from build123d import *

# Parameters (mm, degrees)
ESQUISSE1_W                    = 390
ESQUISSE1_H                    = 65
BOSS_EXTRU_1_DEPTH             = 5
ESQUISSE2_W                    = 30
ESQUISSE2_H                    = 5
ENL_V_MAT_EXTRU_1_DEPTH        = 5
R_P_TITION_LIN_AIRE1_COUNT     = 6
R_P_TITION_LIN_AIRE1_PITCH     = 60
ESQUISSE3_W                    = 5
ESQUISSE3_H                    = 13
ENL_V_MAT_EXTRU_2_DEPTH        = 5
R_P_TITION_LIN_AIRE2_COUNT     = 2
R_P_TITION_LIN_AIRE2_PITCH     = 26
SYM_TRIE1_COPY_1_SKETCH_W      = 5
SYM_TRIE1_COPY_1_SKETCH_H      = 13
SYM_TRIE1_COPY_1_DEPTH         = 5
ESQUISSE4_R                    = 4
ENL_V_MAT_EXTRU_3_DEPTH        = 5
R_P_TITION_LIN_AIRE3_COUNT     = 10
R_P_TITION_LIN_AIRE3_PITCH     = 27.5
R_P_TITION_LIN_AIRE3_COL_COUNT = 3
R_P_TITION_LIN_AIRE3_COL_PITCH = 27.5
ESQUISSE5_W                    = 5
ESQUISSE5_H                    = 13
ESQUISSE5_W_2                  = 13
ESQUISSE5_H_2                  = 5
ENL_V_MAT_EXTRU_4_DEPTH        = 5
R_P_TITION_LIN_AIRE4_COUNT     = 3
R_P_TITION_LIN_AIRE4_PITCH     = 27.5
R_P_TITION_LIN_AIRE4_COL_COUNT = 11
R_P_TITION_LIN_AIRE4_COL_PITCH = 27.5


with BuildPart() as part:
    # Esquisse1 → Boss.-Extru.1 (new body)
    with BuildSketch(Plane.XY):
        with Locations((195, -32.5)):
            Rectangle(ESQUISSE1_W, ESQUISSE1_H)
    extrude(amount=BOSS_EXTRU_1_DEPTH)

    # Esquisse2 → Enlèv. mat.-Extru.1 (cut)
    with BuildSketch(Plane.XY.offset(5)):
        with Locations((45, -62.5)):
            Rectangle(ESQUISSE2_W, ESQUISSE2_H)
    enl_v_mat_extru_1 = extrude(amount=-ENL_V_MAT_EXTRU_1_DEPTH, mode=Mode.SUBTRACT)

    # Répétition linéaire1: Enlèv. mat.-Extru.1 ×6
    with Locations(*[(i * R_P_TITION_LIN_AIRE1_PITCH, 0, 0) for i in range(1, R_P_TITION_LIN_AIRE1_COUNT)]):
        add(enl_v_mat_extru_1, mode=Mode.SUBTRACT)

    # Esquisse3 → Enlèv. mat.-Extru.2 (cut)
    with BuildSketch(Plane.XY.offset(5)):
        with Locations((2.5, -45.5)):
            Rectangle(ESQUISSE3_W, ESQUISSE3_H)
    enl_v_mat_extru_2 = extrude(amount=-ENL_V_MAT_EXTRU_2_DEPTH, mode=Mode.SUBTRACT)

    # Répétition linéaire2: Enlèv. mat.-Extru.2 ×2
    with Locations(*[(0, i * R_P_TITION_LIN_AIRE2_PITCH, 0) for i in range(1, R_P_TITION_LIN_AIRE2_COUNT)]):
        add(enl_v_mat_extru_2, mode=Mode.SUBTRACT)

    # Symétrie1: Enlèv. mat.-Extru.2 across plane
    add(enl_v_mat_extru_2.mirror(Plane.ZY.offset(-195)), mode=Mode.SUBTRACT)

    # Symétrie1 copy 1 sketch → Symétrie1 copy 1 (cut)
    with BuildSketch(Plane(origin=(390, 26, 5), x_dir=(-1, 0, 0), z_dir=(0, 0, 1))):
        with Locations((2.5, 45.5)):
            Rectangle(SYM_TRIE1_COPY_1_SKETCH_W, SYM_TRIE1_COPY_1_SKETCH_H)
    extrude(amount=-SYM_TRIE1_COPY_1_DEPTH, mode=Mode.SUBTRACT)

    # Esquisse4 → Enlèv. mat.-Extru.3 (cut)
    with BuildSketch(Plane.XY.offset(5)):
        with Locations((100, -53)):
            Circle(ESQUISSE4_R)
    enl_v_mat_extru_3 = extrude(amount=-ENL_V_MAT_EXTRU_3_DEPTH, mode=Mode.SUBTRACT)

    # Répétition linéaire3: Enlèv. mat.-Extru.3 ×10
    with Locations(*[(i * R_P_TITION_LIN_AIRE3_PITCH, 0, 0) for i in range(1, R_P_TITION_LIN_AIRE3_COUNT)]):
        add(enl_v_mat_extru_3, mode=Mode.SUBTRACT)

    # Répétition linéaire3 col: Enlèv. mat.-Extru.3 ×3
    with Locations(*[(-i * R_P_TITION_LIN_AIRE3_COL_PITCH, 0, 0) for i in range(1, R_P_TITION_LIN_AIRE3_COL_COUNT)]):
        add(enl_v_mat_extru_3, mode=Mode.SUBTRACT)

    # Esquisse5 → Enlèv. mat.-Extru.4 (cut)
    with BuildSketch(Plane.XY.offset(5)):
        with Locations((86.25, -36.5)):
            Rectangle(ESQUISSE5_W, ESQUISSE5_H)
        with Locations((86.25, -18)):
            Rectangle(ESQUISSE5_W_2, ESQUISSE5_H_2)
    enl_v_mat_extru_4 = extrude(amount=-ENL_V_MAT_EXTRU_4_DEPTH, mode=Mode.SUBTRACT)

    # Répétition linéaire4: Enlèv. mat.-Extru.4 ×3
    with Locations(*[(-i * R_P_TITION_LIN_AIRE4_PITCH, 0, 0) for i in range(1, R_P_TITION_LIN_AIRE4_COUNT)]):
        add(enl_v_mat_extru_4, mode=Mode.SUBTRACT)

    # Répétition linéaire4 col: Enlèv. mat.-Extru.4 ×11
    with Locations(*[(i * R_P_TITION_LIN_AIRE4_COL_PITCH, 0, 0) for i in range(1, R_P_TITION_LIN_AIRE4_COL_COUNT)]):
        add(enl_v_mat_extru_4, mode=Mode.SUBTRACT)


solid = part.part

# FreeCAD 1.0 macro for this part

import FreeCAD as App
import Part
import Sketcher


def add_polygon(sketch, points):
    """Adds a closed chain of lines whose ends are joined by coincident constraints."""
    first, n = sketch.GeometryCount, len(points)
    for a, b in zip(points, points[1:] + points[:1]):
        sketch.addGeometry(Part.LineSegment(App.Vector(*a, 0), App.Vector(*b, 0)), False)
    for i in range(n):
        sketch.addConstraint(Sketcher.Constraint("Coincident", first + i, 2, first + (i + 1) % n, 1))

doc = App.newDocument("Part")
body = doc.addObject("PartDesign::Body", "Body")

sketch1 = body.newObject("Sketcher::SketchObject", "Sketch")
sketch1.AttachmentSupport = (doc.getObject("XY_Plane"), [""])
sketch1.MapMode = "FlatFace"
add_polygon(sketch1, [(0, 0), (0, -65), (390, -65), (390, 0)])
sketch1.addConstraint([
    Sketcher.Constraint("Vertical", 0),
    Sketcher.Constraint("Horizontal", 1),
    Sketcher.Constraint("Vertical", 2),
    Sketcher.Constraint("Horizontal", 3),
    Sketcher.Constraint("Coincident", 3, 2, -1, 1),
    Sketcher.Constraint("DistanceX", 1, 1, 1, 2, 390.0),
    Sketcher.Constraint("DistanceY", 0, 2, 0, 1, 65.0),
])
pad1 = body.newObject("PartDesign::Pad", "Pad")
pad1.Profile = sketch1
pad1.Length = 5

sketch2 = body.newObject("Sketcher::SketchObject", "Sketch001")
sketch2.AttachmentSupport = (doc.getObject("XY_Plane"), [""])
sketch2.MapMode = "FlatFace"
sketch2.AttachmentOffset = App.Placement(App.Vector(0, 0, 5), App.Rotation())
add_polygon(sketch2, [(30, -60), (30, -65), (60, -65), (60, -60)])
sketch2.addConstraint([
    Sketcher.Constraint("Vertical", 0),
    Sketcher.Constraint("Horizontal", 1),
    Sketcher.Constraint("Vertical", 2),
    Sketcher.Constraint("Horizontal", 3),
    Sketcher.Constraint("DistanceX", 1, 1, 1, 2, 30.0),
    Sketcher.Constraint("DistanceY", 0, 2, 0, 1, 5.0),
    Sketcher.Constraint("DistanceX", -1, 1, 0, 2, 30.0),
    Sketcher.Constraint("DistanceY", 0, 2, -1, 1, 65.0),
])
pocket1 = body.newObject("PartDesign::Pocket", "Pocket")
pocket1.Profile = sketch2
pocket1.Length = 5
doc.recompute()

linearpattern = body.newObject("PartDesign::LinearPattern", "LinearPattern")
linearpattern.Originals = [pocket1]
linearpattern.Direction = (doc.getObject("X_Axis"), [""])
linearpattern.Mode = "offset"
linearpattern.Offset = 60
linearpattern.Occurrences = 6
body.Tip = linearpattern

sketch3 = body.newObject("Sketcher::SketchObject", "Sketch002")
sketch3.AttachmentSupport = (doc.getObject("XY_Plane"), [""])
sketch3.MapMode = "FlatFace"
sketch3.AttachmentOffset = App.Placement(App.Vector(0, 0, 5), App.Rotation())
add_polygon(sketch3, [(0, -39), (0, -52), (5, -52), (5, -39)])
sketch3.addConstraint([
    Sketcher.Constraint("Vertical", 0),
    Sketcher.Constraint("Horizontal", 1),
    Sketcher.Constraint("Vertical", 2),
    Sketcher.Constraint("Horizontal", 3),
    Sketcher.Constraint("PointOnObject", 0, 2, -2),
    Sketcher.Constraint("DistanceX", 1, 1, 1, 2, 5.0),
    Sketcher.Constraint("DistanceY", 0, 2, 0, 1, 13.0),
    Sketcher.Constraint("DistanceY", 0, 2, -1, 1, 52.0),
])
pocket2 = body.newObject("PartDesign::Pocket", "Pocket001")
pocket2.Profile = sketch3
pocket2.Length = 5
doc.recompute()

linearpattern2 = body.newObject("PartDesign::LinearPattern", "LinearPattern001")
linearpattern2.Originals = [pocket2]
linearpattern2.Direction = (doc.getObject("Y_Axis"), [""])
linearpattern2.Mode = "offset"
linearpattern2.Offset = 26
linearpattern2.Occurrences = 2
body.Tip = linearpattern2
doc.recompute()

datumplane = body.newObject("PartDesign::Plane", "DatumPlane")
datumplane.AttachmentSupport = (doc.getObject("YZ_Plane"), [""])
datumplane.MapMode = "FlatFace"
datumplane.AttachmentOffset = App.Placement(App.Vector(0, 0, 195), App.Rotation())
mirrored = body.newObject("PartDesign::Mirrored", "Mirrored")
mirrored.Originals = [pocket2]
mirrored.MirrorPlane = (datumplane, [""])
body.Tip = mirrored

sketch4 = body.newObject("Sketcher::SketchObject", "Sketch003")
sketch4.AttachmentSupport = (doc.getObject("XY_Plane"), [""])
sketch4.MapMode = "FlatFace"
sketch4.AttachmentOffset = App.Placement(App.Vector(0, 0, 5), App.Rotation())
add_polygon(sketch4, [(390, -26), (390, -13), (385, -13), (385, -26)])
sketch4.addConstraint([
    Sketcher.Constraint("Vertical", 0),
    Sketcher.Constraint("Horizontal", 1),
    Sketcher.Constraint("Vertical", 2),
    Sketcher.Constraint("Horizontal", 3),
    Sketcher.Constraint("DistanceX", 1, 2, 1, 1, 5.0),
    Sketcher.Constraint("DistanceY", 0, 1, 0, 2, 13.0),
    Sketcher.Constraint("DistanceX", -1, 1, 0, 2, 390.0),
    Sketcher.Constraint("DistanceY", 0, 2, -1, 1, 13.0),
])
pocket3 = body.newObject("PartDesign::Pocket", "Pocket002")
pocket3.Profile = sketch4
pocket3.Length = 5

sketch5 = body.newObject("Sketcher::SketchObject", "Sketch004")
sketch5.AttachmentSupport = (doc.getObject("XY_Plane"), [""])
sketch5.MapMode = "FlatFace"
sketch5.AttachmentOffset = App.Placement(App.Vector(0, 0, 5), App.Rotation())
sketch5.addGeometry(Part.Circle(App.Vector(100, -53, 0), App.Vector(0, 0, 1), 4), False)
sketch5.addConstraint([
    Sketcher.Constraint("Diameter", 0, 8.0),
    Sketcher.Constraint("DistanceX", -1, 1, 0, 3, 100.0),
    Sketcher.Constraint("DistanceY", 0, 3, -1, 1, 53.0),
])
pocket4 = body.newObject("PartDesign::Pocket", "Pocket003")
pocket4.Profile = sketch5
pocket4.Length = 5
doc.recompute()

linearpattern3 = body.newObject("PartDesign::LinearPattern", "LinearPattern002")
linearpattern3.Originals = [pocket4]
linearpattern3.Direction = (doc.getObject("X_Axis"), [""])
linearpattern3.Mode = "offset"
linearpattern3.Offset = 27.5
linearpattern3.Occurrences = 10
body.Tip = linearpattern3
doc.recompute()

linearpattern4 = body.newObject("PartDesign::LinearPattern", "LinearPattern003")
linearpattern4.Originals = [pocket4]
linearpattern4.Direction = (doc.getObject("X_Axis"), [""])
linearpattern4.Mode = "offset"
linearpattern4.Offset = 27.5
linearpattern4.Occurrences = 3
linearpattern4.Reversed = True
body.Tip = linearpattern4

sketch6 = body.newObject("Sketcher::SketchObject", "Sketch005")
sketch6.AttachmentSupport = (doc.getObject("XY_Plane"), [""])
sketch6.MapMode = "FlatFace"
sketch6.AttachmentOffset = App.Placement(App.Vector(0, 0, 5), App.Rotation())
add_polygon(sketch6, [(83.75, -30), (83.75, -43), (88.75, -43), (88.75, -30)])
add_polygon(sketch6, [(79.75, -15.5), (79.75, -20.5), (92.75, -20.5), (92.75, -15.5)])
sketch6.addConstraint([
    Sketcher.Constraint("Vertical", 0),
    Sketcher.Constraint("Horizontal", 1),
    Sketcher.Constraint("Vertical", 2),
    Sketcher.Constraint("Horizontal", 3),
    Sketcher.Constraint("Vertical", 4),
    Sketcher.Constraint("Horizontal", 5),
    Sketcher.Constraint("Vertical", 6),
    Sketcher.Constraint("Horizontal", 7),
    Sketcher.Constraint("Equal", 7, 0),
    Sketcher.Constraint("Equal", 3, 4),
    Sketcher.Constraint("DistanceX", 1, 1, 1, 2, 5.0),
    Sketcher.Constraint("DistanceX", 5, 1, 5, 2, 13.0),
    Sketcher.Constraint("DistanceY", 0, 2, -1, 1, 43.0),
    Sketcher.Constraint("DistanceX", 4, 2, 3, 2, 4.0),
    Sketcher.Constraint("DistanceY", 4, 2, -1, 1, 20.5),
    Sketcher.Constraint("DistanceX", -1, 1, 0, 2, 83.75),
])
pocket5 = body.newObject("PartDesign::Pocket", "Pocket004")
pocket5.Profile = sketch6
pocket5.Length = 5
doc.recompute()

linearpattern5 = body.newObject("PartDesign::LinearPattern", "LinearPattern004")
linearpattern5.Originals = [pocket5]
linearpattern5.Direction = (doc.getObject("X_Axis"), [""])
linearpattern5.Mode = "offset"
linearpattern5.Offset = 27.5
linearpattern5.Occurrences = 3
linearpattern5.Reversed = True
body.Tip = linearpattern5
doc.recompute()

linearpattern6 = body.newObject("PartDesign::LinearPattern", "LinearPattern005")
linearpattern6.Originals = [pocket5]
linearpattern6.Direction = (doc.getObject("X_Axis"), [""])
linearpattern6.Mode = "offset"
linearpattern6.Offset = 27.5
linearpattern6.Occurrences = 11
body.Tip = linearpattern6

doc.recompute()
